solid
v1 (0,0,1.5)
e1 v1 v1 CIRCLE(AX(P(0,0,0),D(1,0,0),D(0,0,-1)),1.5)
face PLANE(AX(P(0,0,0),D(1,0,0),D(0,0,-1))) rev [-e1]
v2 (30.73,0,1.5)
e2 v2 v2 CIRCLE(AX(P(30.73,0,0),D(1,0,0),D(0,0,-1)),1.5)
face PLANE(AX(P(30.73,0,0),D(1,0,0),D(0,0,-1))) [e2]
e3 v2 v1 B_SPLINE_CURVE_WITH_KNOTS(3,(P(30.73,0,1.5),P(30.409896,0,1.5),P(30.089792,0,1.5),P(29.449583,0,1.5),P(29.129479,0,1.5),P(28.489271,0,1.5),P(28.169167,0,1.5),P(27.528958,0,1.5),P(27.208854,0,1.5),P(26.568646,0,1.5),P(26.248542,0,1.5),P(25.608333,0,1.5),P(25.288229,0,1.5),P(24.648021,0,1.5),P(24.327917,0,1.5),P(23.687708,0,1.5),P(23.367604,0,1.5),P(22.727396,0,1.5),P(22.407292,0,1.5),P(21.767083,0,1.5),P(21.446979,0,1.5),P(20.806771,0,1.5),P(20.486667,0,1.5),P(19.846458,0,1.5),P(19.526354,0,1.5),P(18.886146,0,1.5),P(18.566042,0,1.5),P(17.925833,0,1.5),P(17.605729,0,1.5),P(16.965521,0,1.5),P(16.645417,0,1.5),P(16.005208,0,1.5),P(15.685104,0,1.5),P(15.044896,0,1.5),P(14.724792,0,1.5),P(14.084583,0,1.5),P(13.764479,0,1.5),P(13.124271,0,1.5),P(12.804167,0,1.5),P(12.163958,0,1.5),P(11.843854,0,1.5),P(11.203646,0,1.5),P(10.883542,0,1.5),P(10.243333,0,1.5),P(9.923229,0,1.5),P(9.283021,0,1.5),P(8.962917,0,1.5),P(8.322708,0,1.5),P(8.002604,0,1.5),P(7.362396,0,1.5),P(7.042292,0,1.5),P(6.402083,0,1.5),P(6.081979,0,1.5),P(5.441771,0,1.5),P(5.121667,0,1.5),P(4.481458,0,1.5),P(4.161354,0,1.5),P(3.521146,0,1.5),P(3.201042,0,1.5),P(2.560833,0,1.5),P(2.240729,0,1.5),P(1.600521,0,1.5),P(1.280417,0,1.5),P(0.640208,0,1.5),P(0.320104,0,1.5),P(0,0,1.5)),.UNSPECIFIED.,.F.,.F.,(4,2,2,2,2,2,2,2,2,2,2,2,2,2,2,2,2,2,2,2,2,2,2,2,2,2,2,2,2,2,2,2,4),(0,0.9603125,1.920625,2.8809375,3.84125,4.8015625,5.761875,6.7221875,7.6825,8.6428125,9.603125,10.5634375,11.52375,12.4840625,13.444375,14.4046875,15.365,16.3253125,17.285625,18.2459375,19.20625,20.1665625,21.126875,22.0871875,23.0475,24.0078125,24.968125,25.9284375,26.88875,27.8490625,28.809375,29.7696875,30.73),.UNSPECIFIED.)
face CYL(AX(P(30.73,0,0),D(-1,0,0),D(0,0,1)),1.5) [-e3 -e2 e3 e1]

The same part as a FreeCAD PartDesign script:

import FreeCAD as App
import Part
import Sketcher
Q = App.Units.Quantity

doc = App.newDocument("Part")
params = doc.addObject("Spreadsheet::Sheet", "Params")
for row, (alias, value) in enumerate([
    ("sketch1_diameter", "3 mm"),
    ("pad1_length", "30.73 mm"),
], start=1):
    params.set(f"A{row}", alias)
    params.set(f"B{row}", "=" + value)
    params.setAlias(f"B{row}", alias)

body = doc.addObject("PartDesign::Body", "Body")

# Sketch on YZ plane
sketch1 = body.newObject("Sketcher::SketchObject", "Sketch")
sketch1.AttachmentSupport = (doc.getObject("YZ_Plane"), [""])
sketch1.MapMode = "FlatFace"
sketch1.addGeometry(Part.Circle(App.Vector(0, 0, 0), App.Vector(0, 0, 1), 1.5), False)
sketch1.addConstraint([
    Sketcher.Constraint("Coincident", 0, 3, -1, 1),
    Sketcher.Constraint("Diameter", 0, Q("3 mm")),
])
sketch1.setExpression("Constraints[1]", "Params.sketch1_diameter")
pad1 = body.newObject("PartDesign::Pad", "Pad")
pad1.Profile = sketch1
pad1.setExpression("Length", "Params.pad1_length")

doc.recompute()
